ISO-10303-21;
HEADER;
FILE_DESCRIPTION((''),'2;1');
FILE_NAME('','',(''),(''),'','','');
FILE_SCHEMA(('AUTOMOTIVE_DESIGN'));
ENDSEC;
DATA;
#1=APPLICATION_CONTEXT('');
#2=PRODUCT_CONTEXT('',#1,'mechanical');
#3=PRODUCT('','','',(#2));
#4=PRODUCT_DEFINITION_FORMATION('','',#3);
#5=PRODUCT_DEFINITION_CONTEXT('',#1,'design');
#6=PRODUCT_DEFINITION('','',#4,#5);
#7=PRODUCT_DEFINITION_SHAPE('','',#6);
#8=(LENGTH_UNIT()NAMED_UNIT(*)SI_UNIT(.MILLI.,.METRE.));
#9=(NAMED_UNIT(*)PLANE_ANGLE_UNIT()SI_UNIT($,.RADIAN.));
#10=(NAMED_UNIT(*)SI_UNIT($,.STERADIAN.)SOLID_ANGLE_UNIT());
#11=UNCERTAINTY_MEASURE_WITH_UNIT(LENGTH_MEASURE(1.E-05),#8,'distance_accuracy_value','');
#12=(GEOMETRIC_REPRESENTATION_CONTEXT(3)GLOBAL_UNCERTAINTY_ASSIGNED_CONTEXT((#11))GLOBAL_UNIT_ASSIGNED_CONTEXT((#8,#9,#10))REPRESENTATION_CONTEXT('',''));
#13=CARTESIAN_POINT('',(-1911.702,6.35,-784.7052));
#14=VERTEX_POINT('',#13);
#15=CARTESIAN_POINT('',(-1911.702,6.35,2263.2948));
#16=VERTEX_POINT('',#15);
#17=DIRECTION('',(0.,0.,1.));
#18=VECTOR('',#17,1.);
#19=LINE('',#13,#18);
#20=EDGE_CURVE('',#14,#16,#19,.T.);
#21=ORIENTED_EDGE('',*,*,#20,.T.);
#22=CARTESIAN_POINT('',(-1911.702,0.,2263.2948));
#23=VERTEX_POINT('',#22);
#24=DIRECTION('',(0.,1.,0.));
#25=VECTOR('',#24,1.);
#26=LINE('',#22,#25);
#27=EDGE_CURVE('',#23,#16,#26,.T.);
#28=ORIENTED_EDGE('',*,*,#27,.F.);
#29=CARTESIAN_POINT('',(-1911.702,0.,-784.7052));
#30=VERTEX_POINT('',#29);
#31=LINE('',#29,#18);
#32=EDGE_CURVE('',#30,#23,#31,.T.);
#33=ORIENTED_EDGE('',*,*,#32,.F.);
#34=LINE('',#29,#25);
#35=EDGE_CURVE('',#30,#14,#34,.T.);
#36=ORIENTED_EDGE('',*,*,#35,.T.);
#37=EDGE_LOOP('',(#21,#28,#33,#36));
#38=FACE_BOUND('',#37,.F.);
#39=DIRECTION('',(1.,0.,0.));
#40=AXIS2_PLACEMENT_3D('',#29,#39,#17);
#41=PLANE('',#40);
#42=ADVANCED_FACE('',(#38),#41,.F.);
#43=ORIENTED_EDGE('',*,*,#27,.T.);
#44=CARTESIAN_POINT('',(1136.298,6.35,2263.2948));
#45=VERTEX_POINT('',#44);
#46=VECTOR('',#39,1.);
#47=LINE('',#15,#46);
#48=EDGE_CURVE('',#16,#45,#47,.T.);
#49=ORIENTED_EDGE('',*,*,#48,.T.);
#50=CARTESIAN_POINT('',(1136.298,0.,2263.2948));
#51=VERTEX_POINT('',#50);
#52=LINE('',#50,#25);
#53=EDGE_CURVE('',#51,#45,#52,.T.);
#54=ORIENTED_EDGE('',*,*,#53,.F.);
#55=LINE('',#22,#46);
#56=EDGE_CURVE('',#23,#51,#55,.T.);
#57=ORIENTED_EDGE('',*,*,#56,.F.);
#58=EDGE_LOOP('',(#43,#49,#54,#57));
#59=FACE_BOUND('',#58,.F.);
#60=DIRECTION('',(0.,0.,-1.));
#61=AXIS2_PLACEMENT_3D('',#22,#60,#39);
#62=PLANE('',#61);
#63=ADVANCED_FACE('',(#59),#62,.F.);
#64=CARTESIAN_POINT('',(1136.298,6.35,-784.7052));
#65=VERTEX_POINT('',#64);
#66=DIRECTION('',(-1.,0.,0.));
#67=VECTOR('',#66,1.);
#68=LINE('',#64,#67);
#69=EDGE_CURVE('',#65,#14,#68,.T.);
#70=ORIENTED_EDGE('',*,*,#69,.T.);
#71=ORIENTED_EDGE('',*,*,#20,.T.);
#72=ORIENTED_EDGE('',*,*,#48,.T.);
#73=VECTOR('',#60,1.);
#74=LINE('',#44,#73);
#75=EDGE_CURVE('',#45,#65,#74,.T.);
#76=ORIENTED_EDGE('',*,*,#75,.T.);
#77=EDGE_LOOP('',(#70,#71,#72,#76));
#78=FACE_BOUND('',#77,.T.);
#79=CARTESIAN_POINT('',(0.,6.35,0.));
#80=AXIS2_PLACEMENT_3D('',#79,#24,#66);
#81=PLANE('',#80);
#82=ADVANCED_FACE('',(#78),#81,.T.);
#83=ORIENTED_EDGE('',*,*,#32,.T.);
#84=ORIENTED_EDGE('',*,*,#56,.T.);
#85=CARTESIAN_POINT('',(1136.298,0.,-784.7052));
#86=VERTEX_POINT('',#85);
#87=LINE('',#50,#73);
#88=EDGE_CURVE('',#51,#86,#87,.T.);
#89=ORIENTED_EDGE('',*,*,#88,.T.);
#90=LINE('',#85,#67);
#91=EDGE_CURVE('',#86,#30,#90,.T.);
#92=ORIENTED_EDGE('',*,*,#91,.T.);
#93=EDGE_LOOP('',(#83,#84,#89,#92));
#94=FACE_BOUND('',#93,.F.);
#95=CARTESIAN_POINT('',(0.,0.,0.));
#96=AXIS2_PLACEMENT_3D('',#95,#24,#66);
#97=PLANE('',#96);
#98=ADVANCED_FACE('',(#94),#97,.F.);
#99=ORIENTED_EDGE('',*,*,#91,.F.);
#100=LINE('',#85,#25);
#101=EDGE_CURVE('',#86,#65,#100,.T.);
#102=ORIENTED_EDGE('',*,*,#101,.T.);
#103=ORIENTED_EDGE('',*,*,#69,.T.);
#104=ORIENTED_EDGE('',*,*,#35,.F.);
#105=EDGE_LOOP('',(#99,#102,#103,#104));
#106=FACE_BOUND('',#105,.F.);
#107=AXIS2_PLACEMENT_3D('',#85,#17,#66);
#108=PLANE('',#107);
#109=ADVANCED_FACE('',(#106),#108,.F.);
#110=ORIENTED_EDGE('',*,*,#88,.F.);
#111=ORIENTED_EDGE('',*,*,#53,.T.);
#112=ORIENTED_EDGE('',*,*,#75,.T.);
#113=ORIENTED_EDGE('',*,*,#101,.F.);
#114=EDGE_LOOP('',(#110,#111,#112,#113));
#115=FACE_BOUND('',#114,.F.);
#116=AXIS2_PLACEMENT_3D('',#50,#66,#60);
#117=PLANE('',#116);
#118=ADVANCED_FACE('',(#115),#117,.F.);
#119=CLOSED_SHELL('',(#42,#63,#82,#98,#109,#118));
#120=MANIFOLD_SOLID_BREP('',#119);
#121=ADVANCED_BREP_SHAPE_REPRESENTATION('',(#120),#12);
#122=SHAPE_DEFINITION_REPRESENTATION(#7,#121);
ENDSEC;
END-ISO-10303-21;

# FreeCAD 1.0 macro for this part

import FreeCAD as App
import Part
import Sketcher
Q = App.Units.Quantity

doc = App.newDocument("Part")
body = doc.addObject("PartDesign::Body", "Body")

# Sketch on XZ plane
sketch1 = body.newObject("Sketcher::SketchObject", "Sketch")
sketch1.AttachmentSupport = (doc.getObject("XZ_Plane"), [""])
sketch1.MapMode = "FlatFace"
sketch1.addGeometry(Part.LineSegment(App.Vector(-1912, -785, 0), App.Vector(-1912, 2263, 0)), False)
sketch1.addGeometry(Part.LineSegment(App.Vector(-1912, 2263, 0), App.Vector(1136, 2263, 0)), False)
sketch1.addGeometry(Part.LineSegment(App.Vector(1136, 2263, 0), App.Vector(1136, -785, 0)), False)
sketch1.addGeometry(Part.LineSegment(App.Vector(1136, -785, 0), App.Vector(-1912, -785, 0)), False)
sketch1.addConstraint(Sketcher.Constraint("Coincident", 0, 2, 1, 1))
sketch1.addConstraint(Sketcher.Constraint("Coincident", 1, 2, 2, 1))
sketch1.addConstraint(Sketcher.Constraint("Coincident", 2, 2, 3, 1))
sketch1.addConstraint(Sketcher.Constraint("Coincident", 3, 2, 0, 1))
sketch1.addConstraint(Sketcher.Constraint("Vertical", 0))
sketch1.addConstraint(Sketcher.Constraint("Horizontal", 1))
sketch1.addConstraint(Sketcher.Constraint("Vertical", 2))
sketch1.addConstraint(Sketcher.Constraint("Horizontal", 3))
sketch1.addConstraint(Sketcher.Constraint("Equal", 3, 0))
sketch1.addConstraint(Sketcher.Constraint("DistanceX", 1, 1, 1, 2, Q("120 in")))
sketch1.addConstraint(Sketcher.Constraint("DistanceY", -1, 1, 0, 2, Q("89.1061 in")))
sketch1.addConstraint(Sketcher.Constraint("DistanceX", 0, 2, -1, 1, Q("1911.702 mm")))
pad1 = body.newObject("PartDesign::Pad", "Pad")
pad1.Profile = sketch1
pad1.Length = Q("0.25 in")
pad1.Reversed = True

doc.recompute()
